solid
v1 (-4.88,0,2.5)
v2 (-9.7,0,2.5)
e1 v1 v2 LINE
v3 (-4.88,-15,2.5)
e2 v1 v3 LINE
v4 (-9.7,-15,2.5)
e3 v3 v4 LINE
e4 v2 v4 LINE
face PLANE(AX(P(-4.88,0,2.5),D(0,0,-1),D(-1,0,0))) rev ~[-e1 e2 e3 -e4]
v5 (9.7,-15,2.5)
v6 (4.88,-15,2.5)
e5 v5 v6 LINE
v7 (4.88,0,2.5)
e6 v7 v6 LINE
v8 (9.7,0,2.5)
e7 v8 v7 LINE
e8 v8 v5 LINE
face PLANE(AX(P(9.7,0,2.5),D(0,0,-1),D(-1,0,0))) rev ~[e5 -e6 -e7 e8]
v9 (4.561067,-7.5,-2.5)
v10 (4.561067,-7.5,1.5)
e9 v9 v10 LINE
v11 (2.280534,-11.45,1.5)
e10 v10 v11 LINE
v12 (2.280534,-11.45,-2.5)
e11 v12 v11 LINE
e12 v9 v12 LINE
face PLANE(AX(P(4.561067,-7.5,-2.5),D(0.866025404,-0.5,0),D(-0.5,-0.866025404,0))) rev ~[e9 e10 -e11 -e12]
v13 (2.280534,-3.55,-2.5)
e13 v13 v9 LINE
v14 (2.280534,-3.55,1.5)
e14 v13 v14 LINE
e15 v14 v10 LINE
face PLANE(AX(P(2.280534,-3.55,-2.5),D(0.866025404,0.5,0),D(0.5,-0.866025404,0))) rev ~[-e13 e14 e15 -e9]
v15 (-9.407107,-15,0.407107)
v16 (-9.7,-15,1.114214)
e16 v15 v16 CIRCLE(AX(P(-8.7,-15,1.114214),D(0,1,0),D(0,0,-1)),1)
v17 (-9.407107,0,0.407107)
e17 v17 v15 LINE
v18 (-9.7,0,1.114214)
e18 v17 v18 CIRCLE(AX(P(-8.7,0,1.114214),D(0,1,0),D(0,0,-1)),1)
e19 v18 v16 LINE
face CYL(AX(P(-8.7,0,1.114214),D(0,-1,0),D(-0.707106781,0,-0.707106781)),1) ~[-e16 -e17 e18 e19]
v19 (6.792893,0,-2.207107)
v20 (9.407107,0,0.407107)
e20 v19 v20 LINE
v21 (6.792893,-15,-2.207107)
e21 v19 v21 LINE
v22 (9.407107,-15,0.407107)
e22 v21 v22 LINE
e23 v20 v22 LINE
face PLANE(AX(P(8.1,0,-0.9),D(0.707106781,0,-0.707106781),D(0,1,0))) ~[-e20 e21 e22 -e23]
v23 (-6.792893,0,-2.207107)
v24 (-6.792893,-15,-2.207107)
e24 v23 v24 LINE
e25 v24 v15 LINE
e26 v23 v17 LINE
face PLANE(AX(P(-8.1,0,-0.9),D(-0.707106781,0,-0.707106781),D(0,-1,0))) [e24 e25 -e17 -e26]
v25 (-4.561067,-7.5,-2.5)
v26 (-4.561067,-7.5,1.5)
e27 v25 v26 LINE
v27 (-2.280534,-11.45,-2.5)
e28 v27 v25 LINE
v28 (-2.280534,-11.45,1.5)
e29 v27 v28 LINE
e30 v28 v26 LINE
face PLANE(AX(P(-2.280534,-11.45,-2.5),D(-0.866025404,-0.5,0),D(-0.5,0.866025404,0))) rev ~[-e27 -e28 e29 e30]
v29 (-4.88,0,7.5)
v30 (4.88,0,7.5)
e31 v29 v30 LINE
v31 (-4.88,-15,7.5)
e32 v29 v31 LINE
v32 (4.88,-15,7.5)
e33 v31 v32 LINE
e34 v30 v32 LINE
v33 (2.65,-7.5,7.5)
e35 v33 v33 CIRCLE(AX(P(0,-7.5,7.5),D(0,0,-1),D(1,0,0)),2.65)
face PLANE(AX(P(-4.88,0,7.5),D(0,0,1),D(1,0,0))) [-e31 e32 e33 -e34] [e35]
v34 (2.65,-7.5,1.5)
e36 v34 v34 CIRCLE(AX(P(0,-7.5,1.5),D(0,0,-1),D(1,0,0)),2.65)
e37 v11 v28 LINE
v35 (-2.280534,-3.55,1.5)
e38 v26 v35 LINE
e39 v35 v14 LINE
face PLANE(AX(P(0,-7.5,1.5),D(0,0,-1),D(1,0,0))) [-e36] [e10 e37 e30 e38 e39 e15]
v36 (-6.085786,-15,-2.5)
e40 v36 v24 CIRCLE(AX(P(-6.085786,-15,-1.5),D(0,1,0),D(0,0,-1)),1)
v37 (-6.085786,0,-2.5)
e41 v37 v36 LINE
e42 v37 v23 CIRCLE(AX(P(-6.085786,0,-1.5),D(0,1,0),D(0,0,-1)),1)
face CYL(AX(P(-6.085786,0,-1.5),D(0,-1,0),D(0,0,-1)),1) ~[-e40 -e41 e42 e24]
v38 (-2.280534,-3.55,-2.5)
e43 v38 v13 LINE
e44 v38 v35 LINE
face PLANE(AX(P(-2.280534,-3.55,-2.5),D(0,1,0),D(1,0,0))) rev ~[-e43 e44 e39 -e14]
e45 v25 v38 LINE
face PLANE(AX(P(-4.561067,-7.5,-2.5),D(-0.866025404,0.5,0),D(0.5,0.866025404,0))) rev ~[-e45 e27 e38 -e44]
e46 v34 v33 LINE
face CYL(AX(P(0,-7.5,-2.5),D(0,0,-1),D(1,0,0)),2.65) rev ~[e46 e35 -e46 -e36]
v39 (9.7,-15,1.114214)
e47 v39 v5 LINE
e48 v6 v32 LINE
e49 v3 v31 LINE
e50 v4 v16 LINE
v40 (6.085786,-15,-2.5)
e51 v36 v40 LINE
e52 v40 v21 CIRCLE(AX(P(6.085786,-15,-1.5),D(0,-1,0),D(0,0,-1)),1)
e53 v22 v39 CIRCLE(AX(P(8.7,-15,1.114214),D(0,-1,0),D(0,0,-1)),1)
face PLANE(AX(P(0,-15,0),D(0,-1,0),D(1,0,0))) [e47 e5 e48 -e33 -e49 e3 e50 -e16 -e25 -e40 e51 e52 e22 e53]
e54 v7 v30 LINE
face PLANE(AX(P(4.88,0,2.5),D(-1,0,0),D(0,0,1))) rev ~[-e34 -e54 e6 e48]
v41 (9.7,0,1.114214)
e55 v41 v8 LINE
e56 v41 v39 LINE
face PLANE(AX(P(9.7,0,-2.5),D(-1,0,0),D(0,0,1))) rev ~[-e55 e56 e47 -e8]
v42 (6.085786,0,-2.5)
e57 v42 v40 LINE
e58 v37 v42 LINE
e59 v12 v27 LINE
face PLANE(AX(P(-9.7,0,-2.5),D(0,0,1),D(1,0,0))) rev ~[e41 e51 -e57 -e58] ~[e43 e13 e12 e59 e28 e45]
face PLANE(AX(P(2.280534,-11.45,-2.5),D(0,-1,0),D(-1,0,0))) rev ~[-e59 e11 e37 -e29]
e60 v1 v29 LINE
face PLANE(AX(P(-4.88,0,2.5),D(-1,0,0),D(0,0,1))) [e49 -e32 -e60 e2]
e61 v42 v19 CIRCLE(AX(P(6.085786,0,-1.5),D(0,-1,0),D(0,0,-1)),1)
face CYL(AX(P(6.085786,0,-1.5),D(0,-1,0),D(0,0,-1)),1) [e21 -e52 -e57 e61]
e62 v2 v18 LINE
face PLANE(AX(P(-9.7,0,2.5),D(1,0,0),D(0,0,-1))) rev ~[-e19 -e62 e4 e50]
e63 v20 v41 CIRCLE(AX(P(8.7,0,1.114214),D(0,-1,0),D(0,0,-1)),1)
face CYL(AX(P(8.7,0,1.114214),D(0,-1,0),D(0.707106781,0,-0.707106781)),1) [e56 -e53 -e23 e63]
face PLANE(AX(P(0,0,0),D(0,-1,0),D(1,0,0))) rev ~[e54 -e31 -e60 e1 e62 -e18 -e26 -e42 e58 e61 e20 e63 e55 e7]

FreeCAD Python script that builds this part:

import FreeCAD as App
import Part
import Sketcher
Q = App.Units.Quantity


def edges_at(feature, points):
    """Names of the edges that pass closest to the given points."""
    edges = feature.Shape.Edges
    near = lambda p: min(range(len(edges)), key=lambda i: edges[i].distToShape(Part.Vertex(*p))[0])
    return sorted({f"Edge{near(p) + 1}" for p in points})

doc = App.newDocument("Part")
body = doc.addObject("PartDesign::Body", "Body")

sketch1 = body.newObject("Sketcher::SketchObject", "Sketch")
sketch1.AttachmentSupport = (doc.getObject("XZ_Plane"), [""])
sketch1.MapMode = "FlatFace"
sketch1.addGeometry([
    Part.LineSegment(App.Vector(-9.7, -2.5, 0), App.Vector(9.7, -2.5, 0)),
    Part.LineSegment(App.Vector(9.7, -2.5, 0), App.Vector(9.7, 2.5, 0)),
    Part.LineSegment(App.Vector(9.7, 2.5, 0), App.Vector(4.88, 2.5, 0)),
    Part.LineSegment(App.Vector(4.88, 2.5, 0), App.Vector(4.88, 7.5, 0)),
    Part.LineSegment(App.Vector(4.88, 7.5, 0), App.Vector(-4.88, 7.5, 0)),
    Part.LineSegment(App.Vector(-4.88, 7.5, 0), App.Vector(-4.88, 2.5, 0)),
    Part.LineSegment(App.Vector(-4.88, 2.5, 0), App.Vector(-9.7, 2.5, 0)),
    Part.LineSegment(App.Vector(-9.7, 2.5, 0), App.Vector(-9.7, -2.5, 0)),
], False)
sketch1.addConstraint([
    Sketcher.Constraint("Coincident", 0, 2, 1, 1),
    Sketcher.Constraint("Coincident", 1, 2, 2, 1),
    Sketcher.Constraint("Coincident", 2, 2, 3, 1),
    Sketcher.Constraint("Coincident", 3, 2, 4, 1),
    Sketcher.Constraint("Coincident", 4, 2, 5, 1),
    Sketcher.Constraint("Coincident", 5, 2, 6, 1),
    Sketcher.Constraint("Coincident", 6, 2, 7, 1),
    Sketcher.Constraint("Coincident", 7, 2, 0, 1),
    Sketcher.Constraint("Horizontal", 0),
    Sketcher.Constraint("Vertical", 1),
    Sketcher.Constraint("Horizontal", 2),
    Sketcher.Constraint("Vertical", 3),
    Sketcher.Constraint("Horizontal", 4),
    Sketcher.Constraint("Vertical", 5),
    Sketcher.Constraint("Horizontal", 6),
    Sketcher.Constraint("Vertical", 7),
    Sketcher.Constraint("Symmetric", 0, 2, 6, 2, -1, 1),
    Sketcher.Constraint("Symmetric", 2, 2, 5, 2, -2),
    Sketcher.Constraint("Equal", 1, 3),
    Sketcher.Constraint("DistanceY", 1, 1, 1, 2, 5.0),
    Sketcher.Constraint("DistanceX", 0, 1, 0, 2, 19.4),
    Sketcher.Constraint("DistanceX", 2, 2, 2, 1, 4.82),
])
pad1 = body.newObject("PartDesign::Pad", "Pad")
pad1.Profile = sketch1
pad1.Length = 15
doc.recompute()

chamfer = body.newObject("PartDesign::Chamfer", "Chamfer")
chamfer.Base = (pad1, edges_at(pad1, [(9.7, -7.5, -2.5), (-9.7, -7.5, -2.5)]))
chamfer.Size = 3.2

sketch2 = body.newObject("Sketcher::SketchObject", "Sketch001")
sketch2.AttachmentSupport = (doc.getObject("XY_Plane"), [""])
sketch2.MapMode = "FlatFace"
sketch2.AttachmentOffset = App.Placement(App.Vector(0, 0, -2.5), App.Rotation())
sketch2.addGeometry(Part.Circle(App.Vector(0, -7.5, 0), App.Vector(0, 0, 1), 2.65), False)
sketch2.addConstraint([
    Sketcher.Constraint("PointOnObject", 0, 3, -2),
    Sketcher.Constraint("Diameter", 0, 5.3),
    Sketcher.Constraint("DistanceY", 0, 3, -1, 1, 7.5),
])
pocket1 = body.newObject("PartDesign::Pocket", "Pocket")
pocket1.Profile = sketch2
pocket1.Type = "ThroughAll"
pocket1.Reversed = True

sketch3 = body.newObject("Sketcher::SketchObject", "Sketch002")
sketch3.AttachmentSupport = (doc.getObject("XY_Plane"), [""])
sketch3.MapMode = "FlatFace"
sketch3.AttachmentOffset = App.Placement(App.Vector(0, 0, -2.5), App.Rotation())
sketch3.addGeometry([
    Part.LineSegment(App.Vector(-2.280534, -3.55, 0), App.Vector(2.280534, -3.55, 0)),
    Part.LineSegment(App.Vector(2.280534, -3.55, 0), App.Vector(4.561067, -7.5, 0)),
    Part.LineSegment(App.Vector(4.561067, -7.5, 0), App.Vector(2.280534, -11.45, 0)),
    Part.LineSegment(App.Vector(2.280534, -11.45, 0), App.Vector(-2.280534, -11.45, 0)),
    Part.LineSegment(App.Vector(-2.280534, -11.45, 0), App.Vector(-4.561067, -7.5, 0)),
    Part.LineSegment(App.Vector(-4.561067, -7.5, 0), App.Vector(-2.280534, -3.55, 0)),
    Part.Circle(App.Vector(0, -7.5, 0), App.Vector(0, 0, 1), 2.65),
], False)
sketch3.addConstraint([
    Sketcher.Constraint("Coincident", 0, 2, 1, 1),
    Sketcher.Constraint("Coincident", 1, 2, 2, 1),
    Sketcher.Constraint("Coincident", 2, 2, 3, 1),
    Sketcher.Constraint("Coincident", 3, 2, 4, 1),
    Sketcher.Constraint("Coincident", 4, 2, 5, 1),
    Sketcher.Constraint("Coincident", 5, 2, 0, 1),
    Sketcher.Constraint("Horizontal", 0),
    Sketcher.Constraint("Horizontal", 3),
    Sketcher.Constraint("Symmetric", 1, 2, 4, 2, -2),
    Sketcher.Constraint("PointOnObject", 6, 3, -2),
    Sketcher.Constraint("Parallel", 1, 4),
    Sketcher.Constraint("Parallel", 2, 5),
    Sketcher.Constraint("Horizontal", 6, 3, 1, 2),
    Sketcher.Constraint("Vertical", 0, 2, 2, 2),
    Sketcher.Constraint("Vertical", 3, 2, 5, 2),
    Sketcher.Constraint("Diameter", 6, 5.3),
    Sketcher.Constraint("Angle", 1, Q("-60 deg")),
    Sketcher.Constraint("DistanceY", 6, 3, -1, 1, 7.5),
    Sketcher.Constraint("DistanceY", 2, 2, 0, 2, 7.9),
    Sketcher.Constraint("DistanceX", 3, 2, 1, 2, 6.841601),
])
pocket2 = body.newObject("PartDesign::Pocket", "Pocket001")
pocket2.Profile = sketch3
pocket2.Length = 4
pocket2.Reversed = True
doc.recompute()

fillet = body.newObject("PartDesign::Fillet", "Fillet")
fillet.Base = (pocket2, edges_at(pocket2, [
    (-6.5, -7.5, -2.5),
    (6.5, -7.5, -2.5),
    (9.7, -7.5, 0.7),
    (-9.7, -7.5, 0.7),
]))
fillet.Radius = 1

doc.recompute()
